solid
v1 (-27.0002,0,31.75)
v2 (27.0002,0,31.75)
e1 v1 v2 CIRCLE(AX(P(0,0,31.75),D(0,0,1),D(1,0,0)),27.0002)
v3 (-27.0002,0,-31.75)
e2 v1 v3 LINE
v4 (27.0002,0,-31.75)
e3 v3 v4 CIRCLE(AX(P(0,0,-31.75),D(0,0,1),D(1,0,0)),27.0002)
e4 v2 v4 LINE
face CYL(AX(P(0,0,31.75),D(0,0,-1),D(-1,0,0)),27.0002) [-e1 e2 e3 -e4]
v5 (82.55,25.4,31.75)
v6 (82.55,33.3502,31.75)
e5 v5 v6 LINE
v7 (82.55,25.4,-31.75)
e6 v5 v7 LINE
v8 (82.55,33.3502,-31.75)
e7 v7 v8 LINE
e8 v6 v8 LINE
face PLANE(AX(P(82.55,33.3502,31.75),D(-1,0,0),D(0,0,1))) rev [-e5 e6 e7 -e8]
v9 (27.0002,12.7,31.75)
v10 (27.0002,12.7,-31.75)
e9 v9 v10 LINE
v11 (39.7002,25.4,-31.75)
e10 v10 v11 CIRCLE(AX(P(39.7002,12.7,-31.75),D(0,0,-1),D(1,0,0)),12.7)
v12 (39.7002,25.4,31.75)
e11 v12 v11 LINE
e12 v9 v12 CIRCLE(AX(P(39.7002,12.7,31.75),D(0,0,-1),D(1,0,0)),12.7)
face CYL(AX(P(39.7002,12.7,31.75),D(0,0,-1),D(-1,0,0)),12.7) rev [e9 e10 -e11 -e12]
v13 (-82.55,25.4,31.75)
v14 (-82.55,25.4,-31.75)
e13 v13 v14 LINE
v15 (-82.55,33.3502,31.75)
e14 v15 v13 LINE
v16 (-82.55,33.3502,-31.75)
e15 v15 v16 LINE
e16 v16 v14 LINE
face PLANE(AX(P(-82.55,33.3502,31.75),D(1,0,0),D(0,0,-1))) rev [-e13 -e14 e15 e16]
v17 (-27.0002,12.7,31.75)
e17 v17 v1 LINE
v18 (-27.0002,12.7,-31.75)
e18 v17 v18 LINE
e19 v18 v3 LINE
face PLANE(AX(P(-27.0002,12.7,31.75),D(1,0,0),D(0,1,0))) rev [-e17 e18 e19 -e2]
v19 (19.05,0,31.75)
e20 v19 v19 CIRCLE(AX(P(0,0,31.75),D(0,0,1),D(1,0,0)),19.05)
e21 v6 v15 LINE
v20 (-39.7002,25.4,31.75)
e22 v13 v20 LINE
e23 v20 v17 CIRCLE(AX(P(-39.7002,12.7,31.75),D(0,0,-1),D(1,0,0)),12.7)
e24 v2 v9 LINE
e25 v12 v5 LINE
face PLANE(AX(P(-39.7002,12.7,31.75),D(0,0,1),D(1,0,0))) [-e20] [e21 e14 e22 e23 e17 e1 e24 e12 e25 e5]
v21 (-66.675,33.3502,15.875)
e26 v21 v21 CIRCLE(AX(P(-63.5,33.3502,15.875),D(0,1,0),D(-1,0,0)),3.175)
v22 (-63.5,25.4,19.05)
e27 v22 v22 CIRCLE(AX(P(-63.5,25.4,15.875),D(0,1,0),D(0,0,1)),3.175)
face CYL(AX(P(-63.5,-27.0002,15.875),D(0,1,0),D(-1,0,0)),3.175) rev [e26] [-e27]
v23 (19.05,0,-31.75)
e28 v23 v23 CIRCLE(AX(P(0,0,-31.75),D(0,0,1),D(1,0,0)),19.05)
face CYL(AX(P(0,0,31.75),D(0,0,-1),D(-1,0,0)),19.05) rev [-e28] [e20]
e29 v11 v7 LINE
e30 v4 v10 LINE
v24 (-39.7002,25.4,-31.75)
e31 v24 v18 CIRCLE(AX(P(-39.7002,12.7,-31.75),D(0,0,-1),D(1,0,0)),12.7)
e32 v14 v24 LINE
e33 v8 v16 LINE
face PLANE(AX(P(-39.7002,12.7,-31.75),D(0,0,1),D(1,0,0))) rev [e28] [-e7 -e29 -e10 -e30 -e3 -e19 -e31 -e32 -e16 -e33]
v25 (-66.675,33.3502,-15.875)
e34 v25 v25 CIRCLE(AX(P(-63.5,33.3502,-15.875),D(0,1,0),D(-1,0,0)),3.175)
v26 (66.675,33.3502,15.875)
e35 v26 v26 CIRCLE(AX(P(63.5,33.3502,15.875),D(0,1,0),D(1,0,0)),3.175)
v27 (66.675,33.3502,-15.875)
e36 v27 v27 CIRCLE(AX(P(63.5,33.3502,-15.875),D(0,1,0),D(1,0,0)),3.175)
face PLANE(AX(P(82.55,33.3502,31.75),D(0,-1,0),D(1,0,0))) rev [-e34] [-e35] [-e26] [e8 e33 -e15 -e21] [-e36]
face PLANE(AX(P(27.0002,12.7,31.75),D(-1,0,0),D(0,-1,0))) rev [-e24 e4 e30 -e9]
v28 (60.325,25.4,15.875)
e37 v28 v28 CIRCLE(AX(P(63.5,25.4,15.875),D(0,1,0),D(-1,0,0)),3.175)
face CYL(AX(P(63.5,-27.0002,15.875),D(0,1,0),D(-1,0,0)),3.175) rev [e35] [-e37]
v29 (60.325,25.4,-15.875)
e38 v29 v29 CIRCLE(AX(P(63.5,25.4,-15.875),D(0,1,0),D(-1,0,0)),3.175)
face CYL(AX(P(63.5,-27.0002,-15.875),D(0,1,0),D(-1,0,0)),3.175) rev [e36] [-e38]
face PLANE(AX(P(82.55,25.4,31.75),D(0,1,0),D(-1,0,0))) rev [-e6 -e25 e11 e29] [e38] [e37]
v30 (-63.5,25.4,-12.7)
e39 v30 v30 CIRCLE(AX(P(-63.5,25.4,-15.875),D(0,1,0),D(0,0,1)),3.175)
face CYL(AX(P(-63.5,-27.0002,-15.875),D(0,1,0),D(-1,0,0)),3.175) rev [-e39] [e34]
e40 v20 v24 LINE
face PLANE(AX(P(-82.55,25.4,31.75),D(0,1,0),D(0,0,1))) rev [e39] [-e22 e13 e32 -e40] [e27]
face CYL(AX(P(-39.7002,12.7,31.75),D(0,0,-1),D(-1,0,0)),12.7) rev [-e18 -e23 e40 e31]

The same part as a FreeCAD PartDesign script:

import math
import FreeCAD as App
import Part
import Sketcher
from FreeCAD import Vector
Q = App.Units.Quantity

doc = App.newDocument("Part")
body = doc.addObject("PartDesign::Body", "Body")

# Sketch on XY plane
sketch1 = body.newObject("Sketcher::SketchObject", "Sketch")
sketch1.AttachmentSupport = (doc.getObject("XY_Plane"), [""])
sketch1.MapMode = "FlatFace"
sketch1.addGeometry([
    Part.LineSegment(Vector(-83, 33, 0), Vector(-83, 25, 0)),  # 0
    Part.LineSegment(Vector(-83, 25, 0), Vector(-40, 25, 0)),  # 1
    Part.ArcOfCircle(Part.Circle(Vector(-40, 13, 0), Vector(0, 0, 1), 13), math.radians(0), math.radians(90)),  # 2
    Part.LineSegment(Vector(-27, 13, 0), Vector(-27, 0, 0)),  # 3
    Part.ArcOfCircle(Part.Circle(Vector(0, 0, 0), Vector(0, 0, 1), 27), math.radians(180), math.radians(360)),  # 4
    Part.LineSegment(Vector(27, 0, 0), Vector(27, 13, 0)),  # 5
    Part.ArcOfCircle(Part.Circle(Vector(40, 13, 0), Vector(0, 0, 1), 13), math.radians(90), math.radians(180)),  # 6
    Part.LineSegment(Vector(40, 25, 0), Vector(83, 25, 0)),  # 7
    Part.LineSegment(Vector(83, 25, 0), Vector(83, 33, 0)),  # 8
    Part.LineSegment(Vector(83, 33, 0), Vector(-83, 33, 0)),  # 9
    Part.Circle(Vector(0, 0, 0), Vector(0, 0, 1), 19),  # 10
], False)
sketch1.addConstraint([
    Sketcher.Constraint("Coincident", 0, 2, 1, 1),
    Sketcher.Constraint("Tangent", 1, 2, 2, 2),
    Sketcher.Constraint("Tangent", 2, 1, 3, 1),
    Sketcher.Constraint("Tangent", 3, 2, 4, 1),
    Sketcher.Constraint("Tangent", 4, 2, 5, 1),
    Sketcher.Constraint("Tangent", 5, 2, 6, 2),
    Sketcher.Constraint("Tangent", 6, 1, 7, 1),
    Sketcher.Constraint("Coincident", 7, 2, 8, 1),
    Sketcher.Constraint("Coincident", 8, 2, 9, 1),
    Sketcher.Constraint("Coincident", 9, 2, 0, 1),
    Sketcher.Constraint("Vertical", 0),
    Sketcher.Constraint("Horizontal", 1),
    Sketcher.Constraint("Vertical", 3),
    Sketcher.Constraint("Vertical", 5),
    Sketcher.Constraint("Horizontal", 7),
    Sketcher.Constraint("Vertical", 8),
    Sketcher.Constraint("Horizontal", 9),
    Sketcher.Constraint("Coincident", 4, 3, -1, 1),
    Sketcher.Constraint("Coincident", 10, 3, -1, 1),
    Sketcher.Constraint("Equal", 2, 6),
    Sketcher.Constraint("Symmetric", 0, 2, 7, 2, -2),
    Sketcher.Constraint("Diameter", 10, Q("1.5 in")),
    Sketcher.Constraint("Radius", 2, Q("0.5 in")),
    Sketcher.Constraint("DistanceX", 9, 2, 9, 1, Q("6.5 in")),
    Sketcher.Constraint("DistanceY", 3, 2, 3, 1, Q("0.5 in")),
    Sketcher.Constraint("Radius", 4, Q("1.063 in")),
    Sketcher.Constraint("DistanceY", 0, 2, 0, 1, Q("0.313 in")),
])
pad1 = body.newObject("PartDesign::Pad", "Pad")
pad1.Profile = sketch1
pad1.Length = Q("2.5 in")
pad1.Midplane = True

# Sketch on XZ plane
sketch2 = body.newObject("Sketcher::SketchObject", "Sketch001")
sketch2.AttachmentSupport = (doc.getObject("XZ_Plane"), [""])
sketch2.MapMode = "FlatFace"
sketch2.AttachmentOffset = App.Placement(Vector(0, 0, -1.313 * 25.4), App.Rotation())
sketch2.addGeometry([
    Part.Circle(Vector(-63.5, -15.9, 0), Vector(0, 0, 1), 3.2),
    Part.Circle(Vector(-63.5, 15.9, 0), Vector(0, 0, 1), 3.2),
    Part.Circle(Vector(63.5, 15.9, 0), Vector(0, 0, 1), 3.2),
    Part.Circle(Vector(63.5, -15.9, 0), Vector(0, 0, 1), 3.2),
], False)
sketch2.addConstraint([
    Sketcher.Constraint("Equal", 0, 1),
    Sketcher.Constraint("Equal", 1, 2),
    Sketcher.Constraint("Equal", 2, 3),
    Sketcher.Constraint("Symmetric", 0, 3, 2, 3, -1, 1),
    Sketcher.Constraint("Symmetric", 1, 3, 3, 3, -1, 1),
    Sketcher.Constraint("Symmetric", 1, 3, 2, 3, -2),
    Sketcher.Constraint("Diameter", 0, Q("0.25 in")),
    Sketcher.Constraint("DistanceX", 1, 3, 2, 3, Q("5 in")),
    Sketcher.Constraint("DistanceY", 0, 3, 1, 3, Q("1.25 in")),
])
pocket1 = body.newObject("PartDesign::Pocket", "Pocket")
pocket1.Profile = sketch2
pocket1.Type = "ThroughAll"
pocket1.Reversed = True

doc.recompute()
